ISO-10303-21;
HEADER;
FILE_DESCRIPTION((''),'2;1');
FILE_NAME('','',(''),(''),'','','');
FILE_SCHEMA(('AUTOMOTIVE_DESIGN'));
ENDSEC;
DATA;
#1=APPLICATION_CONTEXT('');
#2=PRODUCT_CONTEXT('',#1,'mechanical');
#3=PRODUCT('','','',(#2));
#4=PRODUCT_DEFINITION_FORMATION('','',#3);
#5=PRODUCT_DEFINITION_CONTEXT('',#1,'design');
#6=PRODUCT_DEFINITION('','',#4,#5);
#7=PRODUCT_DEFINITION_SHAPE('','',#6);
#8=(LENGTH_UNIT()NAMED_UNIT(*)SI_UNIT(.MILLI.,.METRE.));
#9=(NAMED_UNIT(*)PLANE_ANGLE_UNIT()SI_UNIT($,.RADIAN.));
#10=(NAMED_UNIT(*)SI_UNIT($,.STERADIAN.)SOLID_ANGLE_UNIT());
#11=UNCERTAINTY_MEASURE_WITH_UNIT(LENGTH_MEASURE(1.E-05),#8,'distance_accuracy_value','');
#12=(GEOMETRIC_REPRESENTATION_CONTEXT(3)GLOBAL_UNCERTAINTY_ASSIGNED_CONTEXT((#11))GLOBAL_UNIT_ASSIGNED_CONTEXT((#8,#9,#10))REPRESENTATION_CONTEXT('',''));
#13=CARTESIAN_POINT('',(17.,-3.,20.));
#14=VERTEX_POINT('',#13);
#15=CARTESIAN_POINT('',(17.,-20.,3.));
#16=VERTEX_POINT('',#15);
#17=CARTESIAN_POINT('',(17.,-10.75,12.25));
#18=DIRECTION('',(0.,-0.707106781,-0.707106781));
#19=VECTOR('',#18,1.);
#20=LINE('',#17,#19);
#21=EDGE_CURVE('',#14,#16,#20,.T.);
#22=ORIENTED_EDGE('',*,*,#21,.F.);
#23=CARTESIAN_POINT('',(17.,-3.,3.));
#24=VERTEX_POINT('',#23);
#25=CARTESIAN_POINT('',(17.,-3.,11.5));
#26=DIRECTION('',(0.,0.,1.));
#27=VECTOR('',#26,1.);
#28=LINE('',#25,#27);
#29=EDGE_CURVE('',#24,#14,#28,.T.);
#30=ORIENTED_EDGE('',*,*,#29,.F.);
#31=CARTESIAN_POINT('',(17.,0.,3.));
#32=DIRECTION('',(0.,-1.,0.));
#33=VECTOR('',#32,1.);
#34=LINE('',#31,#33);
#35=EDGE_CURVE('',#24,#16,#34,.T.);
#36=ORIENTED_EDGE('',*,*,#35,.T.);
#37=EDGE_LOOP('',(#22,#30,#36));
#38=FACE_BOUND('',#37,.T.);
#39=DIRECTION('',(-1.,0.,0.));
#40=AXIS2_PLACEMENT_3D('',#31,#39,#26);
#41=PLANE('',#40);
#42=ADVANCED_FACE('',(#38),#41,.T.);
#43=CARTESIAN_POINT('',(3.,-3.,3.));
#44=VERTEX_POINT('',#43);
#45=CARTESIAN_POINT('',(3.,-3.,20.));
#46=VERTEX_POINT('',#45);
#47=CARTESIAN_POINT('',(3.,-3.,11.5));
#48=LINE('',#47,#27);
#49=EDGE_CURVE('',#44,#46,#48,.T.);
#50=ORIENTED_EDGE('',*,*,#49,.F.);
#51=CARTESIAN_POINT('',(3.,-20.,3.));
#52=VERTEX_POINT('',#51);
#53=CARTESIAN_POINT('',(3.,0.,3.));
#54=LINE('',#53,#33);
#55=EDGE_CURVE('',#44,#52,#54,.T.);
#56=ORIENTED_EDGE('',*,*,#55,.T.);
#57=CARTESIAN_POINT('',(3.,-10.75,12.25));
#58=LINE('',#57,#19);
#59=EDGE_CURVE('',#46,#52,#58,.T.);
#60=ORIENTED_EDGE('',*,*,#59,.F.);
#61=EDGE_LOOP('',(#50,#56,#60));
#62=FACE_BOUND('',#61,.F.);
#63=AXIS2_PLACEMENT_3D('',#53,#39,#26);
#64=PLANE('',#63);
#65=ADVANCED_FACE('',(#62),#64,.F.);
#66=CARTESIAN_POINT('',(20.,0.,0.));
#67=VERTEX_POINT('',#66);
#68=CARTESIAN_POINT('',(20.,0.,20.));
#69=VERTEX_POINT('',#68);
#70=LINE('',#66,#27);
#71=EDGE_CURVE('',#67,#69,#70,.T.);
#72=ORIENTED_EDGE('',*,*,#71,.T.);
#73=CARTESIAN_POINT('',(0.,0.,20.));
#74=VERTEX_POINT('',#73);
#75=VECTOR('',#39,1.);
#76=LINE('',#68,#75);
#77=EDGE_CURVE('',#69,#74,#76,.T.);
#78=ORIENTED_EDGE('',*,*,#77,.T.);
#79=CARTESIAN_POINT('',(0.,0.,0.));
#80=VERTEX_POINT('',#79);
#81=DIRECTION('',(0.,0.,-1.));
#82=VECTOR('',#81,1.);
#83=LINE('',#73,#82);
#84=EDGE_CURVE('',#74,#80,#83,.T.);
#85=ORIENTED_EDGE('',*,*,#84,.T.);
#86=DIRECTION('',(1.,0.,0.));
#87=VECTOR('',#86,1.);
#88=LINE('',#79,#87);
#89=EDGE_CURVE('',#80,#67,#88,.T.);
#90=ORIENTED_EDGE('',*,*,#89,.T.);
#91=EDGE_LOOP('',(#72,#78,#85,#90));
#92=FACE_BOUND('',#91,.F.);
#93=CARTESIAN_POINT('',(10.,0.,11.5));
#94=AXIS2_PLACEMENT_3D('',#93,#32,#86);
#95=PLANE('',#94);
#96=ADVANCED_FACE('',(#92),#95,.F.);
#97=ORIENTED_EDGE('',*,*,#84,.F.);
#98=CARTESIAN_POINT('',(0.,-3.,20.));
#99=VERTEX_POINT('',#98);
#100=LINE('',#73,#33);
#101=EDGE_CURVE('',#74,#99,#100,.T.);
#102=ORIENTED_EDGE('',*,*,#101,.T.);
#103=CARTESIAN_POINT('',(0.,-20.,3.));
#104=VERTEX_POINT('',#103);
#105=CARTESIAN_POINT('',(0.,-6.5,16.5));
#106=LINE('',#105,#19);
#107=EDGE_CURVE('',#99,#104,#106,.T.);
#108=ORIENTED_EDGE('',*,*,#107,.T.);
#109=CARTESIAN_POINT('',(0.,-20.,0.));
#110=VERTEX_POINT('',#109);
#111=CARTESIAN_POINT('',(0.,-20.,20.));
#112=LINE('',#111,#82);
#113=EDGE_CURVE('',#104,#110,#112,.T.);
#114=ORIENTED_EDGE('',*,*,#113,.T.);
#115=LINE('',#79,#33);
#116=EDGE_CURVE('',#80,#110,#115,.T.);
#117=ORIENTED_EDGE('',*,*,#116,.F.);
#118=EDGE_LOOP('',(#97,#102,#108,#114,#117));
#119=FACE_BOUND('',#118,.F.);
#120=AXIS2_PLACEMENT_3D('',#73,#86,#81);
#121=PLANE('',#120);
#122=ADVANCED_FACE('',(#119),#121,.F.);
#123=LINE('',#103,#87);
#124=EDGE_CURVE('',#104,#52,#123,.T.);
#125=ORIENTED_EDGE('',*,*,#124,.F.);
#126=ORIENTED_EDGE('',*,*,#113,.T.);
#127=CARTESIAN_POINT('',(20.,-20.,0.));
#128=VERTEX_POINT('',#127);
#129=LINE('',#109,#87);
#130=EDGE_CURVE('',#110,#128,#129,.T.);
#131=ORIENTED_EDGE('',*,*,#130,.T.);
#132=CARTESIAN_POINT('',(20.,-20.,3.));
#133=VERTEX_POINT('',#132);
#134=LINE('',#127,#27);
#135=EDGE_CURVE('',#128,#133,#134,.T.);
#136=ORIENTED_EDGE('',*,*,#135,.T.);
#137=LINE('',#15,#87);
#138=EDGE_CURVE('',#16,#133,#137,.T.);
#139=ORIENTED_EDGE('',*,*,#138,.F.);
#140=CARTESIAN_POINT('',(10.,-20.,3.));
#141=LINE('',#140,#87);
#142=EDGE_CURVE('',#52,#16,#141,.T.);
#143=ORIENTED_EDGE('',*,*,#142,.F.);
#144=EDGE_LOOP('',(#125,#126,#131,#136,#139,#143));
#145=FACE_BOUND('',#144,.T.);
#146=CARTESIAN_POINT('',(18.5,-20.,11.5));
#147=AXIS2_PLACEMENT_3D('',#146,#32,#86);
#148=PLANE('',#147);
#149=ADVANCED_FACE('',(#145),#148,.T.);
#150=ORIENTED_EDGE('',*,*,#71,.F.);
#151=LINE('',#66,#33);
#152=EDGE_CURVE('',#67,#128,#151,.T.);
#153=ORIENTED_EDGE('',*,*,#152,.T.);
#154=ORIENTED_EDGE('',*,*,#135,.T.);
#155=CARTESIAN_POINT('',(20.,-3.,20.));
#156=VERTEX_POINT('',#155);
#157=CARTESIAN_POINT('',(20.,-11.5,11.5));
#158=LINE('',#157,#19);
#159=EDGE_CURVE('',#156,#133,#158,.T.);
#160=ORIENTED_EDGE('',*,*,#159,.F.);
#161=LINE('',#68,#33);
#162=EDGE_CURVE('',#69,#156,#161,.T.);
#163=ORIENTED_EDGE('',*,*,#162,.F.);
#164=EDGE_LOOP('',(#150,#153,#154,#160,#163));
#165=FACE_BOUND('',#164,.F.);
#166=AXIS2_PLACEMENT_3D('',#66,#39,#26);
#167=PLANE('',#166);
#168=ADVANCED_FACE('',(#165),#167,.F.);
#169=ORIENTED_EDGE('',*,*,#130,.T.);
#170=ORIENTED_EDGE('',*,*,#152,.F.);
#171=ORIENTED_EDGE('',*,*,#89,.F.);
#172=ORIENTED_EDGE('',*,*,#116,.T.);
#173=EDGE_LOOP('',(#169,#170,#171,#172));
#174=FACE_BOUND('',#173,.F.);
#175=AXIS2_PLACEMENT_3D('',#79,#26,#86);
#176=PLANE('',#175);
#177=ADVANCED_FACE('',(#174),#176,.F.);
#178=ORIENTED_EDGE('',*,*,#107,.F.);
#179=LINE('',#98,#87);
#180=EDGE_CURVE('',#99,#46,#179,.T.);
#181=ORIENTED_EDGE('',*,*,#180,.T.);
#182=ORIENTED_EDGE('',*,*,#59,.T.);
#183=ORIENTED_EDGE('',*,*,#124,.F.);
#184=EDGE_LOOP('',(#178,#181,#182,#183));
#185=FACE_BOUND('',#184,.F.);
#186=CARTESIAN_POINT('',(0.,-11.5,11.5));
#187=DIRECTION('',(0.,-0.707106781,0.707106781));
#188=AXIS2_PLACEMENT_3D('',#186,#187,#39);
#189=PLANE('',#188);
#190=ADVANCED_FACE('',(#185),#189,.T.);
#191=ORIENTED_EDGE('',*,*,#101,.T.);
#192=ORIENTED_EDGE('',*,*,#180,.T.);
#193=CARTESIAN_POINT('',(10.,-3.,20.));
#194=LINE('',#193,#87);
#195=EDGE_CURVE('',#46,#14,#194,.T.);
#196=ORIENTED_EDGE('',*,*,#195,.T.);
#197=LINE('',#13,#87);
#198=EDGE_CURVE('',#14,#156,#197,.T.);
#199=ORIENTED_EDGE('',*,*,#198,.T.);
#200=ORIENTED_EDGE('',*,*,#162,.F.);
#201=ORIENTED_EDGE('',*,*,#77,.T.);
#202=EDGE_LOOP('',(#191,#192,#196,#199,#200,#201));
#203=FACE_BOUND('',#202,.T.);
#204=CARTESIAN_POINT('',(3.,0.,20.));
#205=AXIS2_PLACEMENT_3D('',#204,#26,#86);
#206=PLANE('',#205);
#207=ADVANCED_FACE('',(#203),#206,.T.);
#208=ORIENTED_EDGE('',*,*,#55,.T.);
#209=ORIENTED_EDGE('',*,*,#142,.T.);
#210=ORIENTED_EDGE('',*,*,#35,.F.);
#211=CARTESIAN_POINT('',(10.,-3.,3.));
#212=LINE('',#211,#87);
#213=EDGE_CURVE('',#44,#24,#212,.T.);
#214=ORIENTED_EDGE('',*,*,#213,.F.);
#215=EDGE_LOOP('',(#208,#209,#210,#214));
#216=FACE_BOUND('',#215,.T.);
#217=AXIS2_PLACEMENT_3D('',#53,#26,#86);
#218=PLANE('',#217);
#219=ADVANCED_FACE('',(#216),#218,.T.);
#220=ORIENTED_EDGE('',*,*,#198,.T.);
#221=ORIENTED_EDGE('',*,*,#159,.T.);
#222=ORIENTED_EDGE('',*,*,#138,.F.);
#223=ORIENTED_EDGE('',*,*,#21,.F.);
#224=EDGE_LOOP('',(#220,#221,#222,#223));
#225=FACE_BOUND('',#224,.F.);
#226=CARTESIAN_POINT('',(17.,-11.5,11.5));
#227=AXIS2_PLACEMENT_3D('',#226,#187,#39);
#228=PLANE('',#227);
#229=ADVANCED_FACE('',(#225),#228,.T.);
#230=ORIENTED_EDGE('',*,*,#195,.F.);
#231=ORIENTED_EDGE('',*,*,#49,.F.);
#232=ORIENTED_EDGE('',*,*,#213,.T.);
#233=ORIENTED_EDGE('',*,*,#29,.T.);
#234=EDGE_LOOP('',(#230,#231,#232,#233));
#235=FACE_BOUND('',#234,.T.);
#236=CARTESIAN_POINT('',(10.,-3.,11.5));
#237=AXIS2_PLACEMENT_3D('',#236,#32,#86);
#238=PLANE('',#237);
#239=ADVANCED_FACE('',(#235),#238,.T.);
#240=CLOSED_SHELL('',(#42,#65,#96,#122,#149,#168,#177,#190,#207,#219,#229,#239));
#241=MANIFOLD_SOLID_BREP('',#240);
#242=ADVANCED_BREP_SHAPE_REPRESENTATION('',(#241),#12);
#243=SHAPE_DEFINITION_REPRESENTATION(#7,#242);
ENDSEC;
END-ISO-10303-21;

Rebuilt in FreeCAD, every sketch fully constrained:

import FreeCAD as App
import Part
import Sketcher
from FreeCAD import Vector
Q = App.Units.Quantity


def edges_at(feature, points):
    """Names of the edges that pass closest to the given points."""
    edges = feature.Shape.Edges
    near = lambda p: min(range(len(edges)), key=lambda i: edges[i].distToShape(Part.Vertex(*p))[0])
    return sorted({f"Edge{near(p) + 1}" for p in points})

doc = App.newDocument("Part")
body = doc.addObject("PartDesign::Body", "Body")

# Sketch on XZ plane
sketch1 = doc.addObject("Sketcher::SketchObject", "Sketch")
body.addObject(sketch1)
sketch1.AttachmentSupport = (doc.XZ_Plane, [""])
sketch1.MapMode = "FlatFace"
sketch1.addGeometry([
    Part.LineSegment(Vector(17, 20, 0), Vector(17, 3, 0)),  # 0
    Part.LineSegment(Vector(17, 3, 0), Vector(3, 3, 0)),  # 1
    Part.LineSegment(Vector(3, 3, 0), Vector(3, 20, 0)),  # 2
    Part.LineSegment(Vector(3, 20, 0), Vector(0, 20, 0)),  # 3
    Part.LineSegment(Vector(0, 20, 0), Vector(0, 0, 0)),  # 4
    Part.LineSegment(Vector(0, 0, 0), Vector(20, 0, 0)),  # 5
    Part.LineSegment(Vector(20, 0, 0), Vector(20, 20, 0)),  # 6
    Part.LineSegment(Vector(20, 20, 0), Vector(17, 20, 0)),  # 7
], False)
sketch1.addConstraint([
    Sketcher.Constraint("Coincident", 0, 2, 1, 1),
    Sketcher.Constraint("Coincident", 1, 2, 2, 1),
    Sketcher.Constraint("Coincident", 2, 2, 3, 1),
    Sketcher.Constraint("Coincident", 3, 2, 4, 1),
    Sketcher.Constraint("Coincident", 4, 2, 5, 1),
    Sketcher.Constraint("Coincident", 5, 2, 6, 1),
    Sketcher.Constraint("Coincident", 6, 2, 7, 1),
    Sketcher.Constraint("Coincident", 7, 2, 0, 1),
    Sketcher.Constraint("Vertical", 0),
    Sketcher.Constraint("Horizontal", 1),
    Sketcher.Constraint("Vertical", 2),
    Sketcher.Constraint("Horizontal", 3),
    Sketcher.Constraint("Vertical", 4),
    Sketcher.Constraint("Horizontal", 5),
    Sketcher.Constraint("Vertical", 6),
    Sketcher.Constraint("Horizontal", 7),
    Sketcher.Constraint("Coincident", 4, 2, -1, 1),
    Sketcher.Constraint("Horizontal", 3, 2, 6, 2),
    Sketcher.Constraint("Equal", 3, 7),
    Sketcher.Constraint("Equal", 5, 4),
    Sketcher.Constraint("DistanceX", 1, 2, 1, 1, Q("14 mm")),
    Sketcher.Constraint("DistanceX", 3, 2, 3, 1, Q("3 mm")),
    Sketcher.Constraint("DistanceY", 0, 2, 0, 1, Q("17 mm")),
])
pad1 = doc.addObject("PartDesign::Pad", "Pad")
body.addObject(pad1)
pad1.Profile = sketch1
pad1.Length = 20

# Sketch on XZ plane
sketch2 = doc.addObject("Sketcher::SketchObject", "Sketch001")
body.addObject(sketch2)
sketch2.AttachmentSupport = (doc.XZ_Plane, [""])
sketch2.MapMode = "FlatFace"
sketch2.addGeometry([
    Part.LineSegment(Vector(3, 20, 0), Vector(3, 3, 0)),
    Part.LineSegment(Vector(3, 3, 0), Vector(17, 3, 0)),
    Part.LineSegment(Vector(17, 3, 0), Vector(17, 20, 0)),
    Part.LineSegment(Vector(17, 20, 0), Vector(3, 20, 0)),
], False)
sketch2.addConstraint([
    Sketcher.Constraint("Coincident", 0, 2, 1, 1),
    Sketcher.Constraint("Coincident", 1, 2, 2, 1),
    Sketcher.Constraint("Coincident", 2, 2, 3, 1),
    Sketcher.Constraint("Coincident", 3, 2, 0, 1),
    Sketcher.Constraint("Vertical", 0),
    Sketcher.Constraint("Horizontal", 1),
    Sketcher.Constraint("Vertical", 2),
    Sketcher.Constraint("Horizontal", 3),
    Sketcher.Constraint("DistanceX", 1, 1, 1, 2, Q("14 mm")),
    Sketcher.Constraint("DistanceY", 0, 2, 0, 1, Q("17 mm")),
    Sketcher.Constraint("DistanceX", -1, 1, 0, 2, Q("3 mm")),
    Sketcher.Constraint("DistanceY", -1, 1, 0, 2, Q("3 mm")),
])
pad2 = doc.addObject("PartDesign::Pad", "Pad001")
body.addObject(pad2)
pad2.Profile = sketch2
pad2.Length = 3
doc.recompute()

chamfer = doc.addObject("PartDesign::Chamfer", "Chamfer")
body.addObject(chamfer)
chamfer.Base = (pad2, edges_at(pad2, [(1.5, -20, 20), (18.5, -20, 20)]))
chamfer.Size = 17

doc.recompute()
